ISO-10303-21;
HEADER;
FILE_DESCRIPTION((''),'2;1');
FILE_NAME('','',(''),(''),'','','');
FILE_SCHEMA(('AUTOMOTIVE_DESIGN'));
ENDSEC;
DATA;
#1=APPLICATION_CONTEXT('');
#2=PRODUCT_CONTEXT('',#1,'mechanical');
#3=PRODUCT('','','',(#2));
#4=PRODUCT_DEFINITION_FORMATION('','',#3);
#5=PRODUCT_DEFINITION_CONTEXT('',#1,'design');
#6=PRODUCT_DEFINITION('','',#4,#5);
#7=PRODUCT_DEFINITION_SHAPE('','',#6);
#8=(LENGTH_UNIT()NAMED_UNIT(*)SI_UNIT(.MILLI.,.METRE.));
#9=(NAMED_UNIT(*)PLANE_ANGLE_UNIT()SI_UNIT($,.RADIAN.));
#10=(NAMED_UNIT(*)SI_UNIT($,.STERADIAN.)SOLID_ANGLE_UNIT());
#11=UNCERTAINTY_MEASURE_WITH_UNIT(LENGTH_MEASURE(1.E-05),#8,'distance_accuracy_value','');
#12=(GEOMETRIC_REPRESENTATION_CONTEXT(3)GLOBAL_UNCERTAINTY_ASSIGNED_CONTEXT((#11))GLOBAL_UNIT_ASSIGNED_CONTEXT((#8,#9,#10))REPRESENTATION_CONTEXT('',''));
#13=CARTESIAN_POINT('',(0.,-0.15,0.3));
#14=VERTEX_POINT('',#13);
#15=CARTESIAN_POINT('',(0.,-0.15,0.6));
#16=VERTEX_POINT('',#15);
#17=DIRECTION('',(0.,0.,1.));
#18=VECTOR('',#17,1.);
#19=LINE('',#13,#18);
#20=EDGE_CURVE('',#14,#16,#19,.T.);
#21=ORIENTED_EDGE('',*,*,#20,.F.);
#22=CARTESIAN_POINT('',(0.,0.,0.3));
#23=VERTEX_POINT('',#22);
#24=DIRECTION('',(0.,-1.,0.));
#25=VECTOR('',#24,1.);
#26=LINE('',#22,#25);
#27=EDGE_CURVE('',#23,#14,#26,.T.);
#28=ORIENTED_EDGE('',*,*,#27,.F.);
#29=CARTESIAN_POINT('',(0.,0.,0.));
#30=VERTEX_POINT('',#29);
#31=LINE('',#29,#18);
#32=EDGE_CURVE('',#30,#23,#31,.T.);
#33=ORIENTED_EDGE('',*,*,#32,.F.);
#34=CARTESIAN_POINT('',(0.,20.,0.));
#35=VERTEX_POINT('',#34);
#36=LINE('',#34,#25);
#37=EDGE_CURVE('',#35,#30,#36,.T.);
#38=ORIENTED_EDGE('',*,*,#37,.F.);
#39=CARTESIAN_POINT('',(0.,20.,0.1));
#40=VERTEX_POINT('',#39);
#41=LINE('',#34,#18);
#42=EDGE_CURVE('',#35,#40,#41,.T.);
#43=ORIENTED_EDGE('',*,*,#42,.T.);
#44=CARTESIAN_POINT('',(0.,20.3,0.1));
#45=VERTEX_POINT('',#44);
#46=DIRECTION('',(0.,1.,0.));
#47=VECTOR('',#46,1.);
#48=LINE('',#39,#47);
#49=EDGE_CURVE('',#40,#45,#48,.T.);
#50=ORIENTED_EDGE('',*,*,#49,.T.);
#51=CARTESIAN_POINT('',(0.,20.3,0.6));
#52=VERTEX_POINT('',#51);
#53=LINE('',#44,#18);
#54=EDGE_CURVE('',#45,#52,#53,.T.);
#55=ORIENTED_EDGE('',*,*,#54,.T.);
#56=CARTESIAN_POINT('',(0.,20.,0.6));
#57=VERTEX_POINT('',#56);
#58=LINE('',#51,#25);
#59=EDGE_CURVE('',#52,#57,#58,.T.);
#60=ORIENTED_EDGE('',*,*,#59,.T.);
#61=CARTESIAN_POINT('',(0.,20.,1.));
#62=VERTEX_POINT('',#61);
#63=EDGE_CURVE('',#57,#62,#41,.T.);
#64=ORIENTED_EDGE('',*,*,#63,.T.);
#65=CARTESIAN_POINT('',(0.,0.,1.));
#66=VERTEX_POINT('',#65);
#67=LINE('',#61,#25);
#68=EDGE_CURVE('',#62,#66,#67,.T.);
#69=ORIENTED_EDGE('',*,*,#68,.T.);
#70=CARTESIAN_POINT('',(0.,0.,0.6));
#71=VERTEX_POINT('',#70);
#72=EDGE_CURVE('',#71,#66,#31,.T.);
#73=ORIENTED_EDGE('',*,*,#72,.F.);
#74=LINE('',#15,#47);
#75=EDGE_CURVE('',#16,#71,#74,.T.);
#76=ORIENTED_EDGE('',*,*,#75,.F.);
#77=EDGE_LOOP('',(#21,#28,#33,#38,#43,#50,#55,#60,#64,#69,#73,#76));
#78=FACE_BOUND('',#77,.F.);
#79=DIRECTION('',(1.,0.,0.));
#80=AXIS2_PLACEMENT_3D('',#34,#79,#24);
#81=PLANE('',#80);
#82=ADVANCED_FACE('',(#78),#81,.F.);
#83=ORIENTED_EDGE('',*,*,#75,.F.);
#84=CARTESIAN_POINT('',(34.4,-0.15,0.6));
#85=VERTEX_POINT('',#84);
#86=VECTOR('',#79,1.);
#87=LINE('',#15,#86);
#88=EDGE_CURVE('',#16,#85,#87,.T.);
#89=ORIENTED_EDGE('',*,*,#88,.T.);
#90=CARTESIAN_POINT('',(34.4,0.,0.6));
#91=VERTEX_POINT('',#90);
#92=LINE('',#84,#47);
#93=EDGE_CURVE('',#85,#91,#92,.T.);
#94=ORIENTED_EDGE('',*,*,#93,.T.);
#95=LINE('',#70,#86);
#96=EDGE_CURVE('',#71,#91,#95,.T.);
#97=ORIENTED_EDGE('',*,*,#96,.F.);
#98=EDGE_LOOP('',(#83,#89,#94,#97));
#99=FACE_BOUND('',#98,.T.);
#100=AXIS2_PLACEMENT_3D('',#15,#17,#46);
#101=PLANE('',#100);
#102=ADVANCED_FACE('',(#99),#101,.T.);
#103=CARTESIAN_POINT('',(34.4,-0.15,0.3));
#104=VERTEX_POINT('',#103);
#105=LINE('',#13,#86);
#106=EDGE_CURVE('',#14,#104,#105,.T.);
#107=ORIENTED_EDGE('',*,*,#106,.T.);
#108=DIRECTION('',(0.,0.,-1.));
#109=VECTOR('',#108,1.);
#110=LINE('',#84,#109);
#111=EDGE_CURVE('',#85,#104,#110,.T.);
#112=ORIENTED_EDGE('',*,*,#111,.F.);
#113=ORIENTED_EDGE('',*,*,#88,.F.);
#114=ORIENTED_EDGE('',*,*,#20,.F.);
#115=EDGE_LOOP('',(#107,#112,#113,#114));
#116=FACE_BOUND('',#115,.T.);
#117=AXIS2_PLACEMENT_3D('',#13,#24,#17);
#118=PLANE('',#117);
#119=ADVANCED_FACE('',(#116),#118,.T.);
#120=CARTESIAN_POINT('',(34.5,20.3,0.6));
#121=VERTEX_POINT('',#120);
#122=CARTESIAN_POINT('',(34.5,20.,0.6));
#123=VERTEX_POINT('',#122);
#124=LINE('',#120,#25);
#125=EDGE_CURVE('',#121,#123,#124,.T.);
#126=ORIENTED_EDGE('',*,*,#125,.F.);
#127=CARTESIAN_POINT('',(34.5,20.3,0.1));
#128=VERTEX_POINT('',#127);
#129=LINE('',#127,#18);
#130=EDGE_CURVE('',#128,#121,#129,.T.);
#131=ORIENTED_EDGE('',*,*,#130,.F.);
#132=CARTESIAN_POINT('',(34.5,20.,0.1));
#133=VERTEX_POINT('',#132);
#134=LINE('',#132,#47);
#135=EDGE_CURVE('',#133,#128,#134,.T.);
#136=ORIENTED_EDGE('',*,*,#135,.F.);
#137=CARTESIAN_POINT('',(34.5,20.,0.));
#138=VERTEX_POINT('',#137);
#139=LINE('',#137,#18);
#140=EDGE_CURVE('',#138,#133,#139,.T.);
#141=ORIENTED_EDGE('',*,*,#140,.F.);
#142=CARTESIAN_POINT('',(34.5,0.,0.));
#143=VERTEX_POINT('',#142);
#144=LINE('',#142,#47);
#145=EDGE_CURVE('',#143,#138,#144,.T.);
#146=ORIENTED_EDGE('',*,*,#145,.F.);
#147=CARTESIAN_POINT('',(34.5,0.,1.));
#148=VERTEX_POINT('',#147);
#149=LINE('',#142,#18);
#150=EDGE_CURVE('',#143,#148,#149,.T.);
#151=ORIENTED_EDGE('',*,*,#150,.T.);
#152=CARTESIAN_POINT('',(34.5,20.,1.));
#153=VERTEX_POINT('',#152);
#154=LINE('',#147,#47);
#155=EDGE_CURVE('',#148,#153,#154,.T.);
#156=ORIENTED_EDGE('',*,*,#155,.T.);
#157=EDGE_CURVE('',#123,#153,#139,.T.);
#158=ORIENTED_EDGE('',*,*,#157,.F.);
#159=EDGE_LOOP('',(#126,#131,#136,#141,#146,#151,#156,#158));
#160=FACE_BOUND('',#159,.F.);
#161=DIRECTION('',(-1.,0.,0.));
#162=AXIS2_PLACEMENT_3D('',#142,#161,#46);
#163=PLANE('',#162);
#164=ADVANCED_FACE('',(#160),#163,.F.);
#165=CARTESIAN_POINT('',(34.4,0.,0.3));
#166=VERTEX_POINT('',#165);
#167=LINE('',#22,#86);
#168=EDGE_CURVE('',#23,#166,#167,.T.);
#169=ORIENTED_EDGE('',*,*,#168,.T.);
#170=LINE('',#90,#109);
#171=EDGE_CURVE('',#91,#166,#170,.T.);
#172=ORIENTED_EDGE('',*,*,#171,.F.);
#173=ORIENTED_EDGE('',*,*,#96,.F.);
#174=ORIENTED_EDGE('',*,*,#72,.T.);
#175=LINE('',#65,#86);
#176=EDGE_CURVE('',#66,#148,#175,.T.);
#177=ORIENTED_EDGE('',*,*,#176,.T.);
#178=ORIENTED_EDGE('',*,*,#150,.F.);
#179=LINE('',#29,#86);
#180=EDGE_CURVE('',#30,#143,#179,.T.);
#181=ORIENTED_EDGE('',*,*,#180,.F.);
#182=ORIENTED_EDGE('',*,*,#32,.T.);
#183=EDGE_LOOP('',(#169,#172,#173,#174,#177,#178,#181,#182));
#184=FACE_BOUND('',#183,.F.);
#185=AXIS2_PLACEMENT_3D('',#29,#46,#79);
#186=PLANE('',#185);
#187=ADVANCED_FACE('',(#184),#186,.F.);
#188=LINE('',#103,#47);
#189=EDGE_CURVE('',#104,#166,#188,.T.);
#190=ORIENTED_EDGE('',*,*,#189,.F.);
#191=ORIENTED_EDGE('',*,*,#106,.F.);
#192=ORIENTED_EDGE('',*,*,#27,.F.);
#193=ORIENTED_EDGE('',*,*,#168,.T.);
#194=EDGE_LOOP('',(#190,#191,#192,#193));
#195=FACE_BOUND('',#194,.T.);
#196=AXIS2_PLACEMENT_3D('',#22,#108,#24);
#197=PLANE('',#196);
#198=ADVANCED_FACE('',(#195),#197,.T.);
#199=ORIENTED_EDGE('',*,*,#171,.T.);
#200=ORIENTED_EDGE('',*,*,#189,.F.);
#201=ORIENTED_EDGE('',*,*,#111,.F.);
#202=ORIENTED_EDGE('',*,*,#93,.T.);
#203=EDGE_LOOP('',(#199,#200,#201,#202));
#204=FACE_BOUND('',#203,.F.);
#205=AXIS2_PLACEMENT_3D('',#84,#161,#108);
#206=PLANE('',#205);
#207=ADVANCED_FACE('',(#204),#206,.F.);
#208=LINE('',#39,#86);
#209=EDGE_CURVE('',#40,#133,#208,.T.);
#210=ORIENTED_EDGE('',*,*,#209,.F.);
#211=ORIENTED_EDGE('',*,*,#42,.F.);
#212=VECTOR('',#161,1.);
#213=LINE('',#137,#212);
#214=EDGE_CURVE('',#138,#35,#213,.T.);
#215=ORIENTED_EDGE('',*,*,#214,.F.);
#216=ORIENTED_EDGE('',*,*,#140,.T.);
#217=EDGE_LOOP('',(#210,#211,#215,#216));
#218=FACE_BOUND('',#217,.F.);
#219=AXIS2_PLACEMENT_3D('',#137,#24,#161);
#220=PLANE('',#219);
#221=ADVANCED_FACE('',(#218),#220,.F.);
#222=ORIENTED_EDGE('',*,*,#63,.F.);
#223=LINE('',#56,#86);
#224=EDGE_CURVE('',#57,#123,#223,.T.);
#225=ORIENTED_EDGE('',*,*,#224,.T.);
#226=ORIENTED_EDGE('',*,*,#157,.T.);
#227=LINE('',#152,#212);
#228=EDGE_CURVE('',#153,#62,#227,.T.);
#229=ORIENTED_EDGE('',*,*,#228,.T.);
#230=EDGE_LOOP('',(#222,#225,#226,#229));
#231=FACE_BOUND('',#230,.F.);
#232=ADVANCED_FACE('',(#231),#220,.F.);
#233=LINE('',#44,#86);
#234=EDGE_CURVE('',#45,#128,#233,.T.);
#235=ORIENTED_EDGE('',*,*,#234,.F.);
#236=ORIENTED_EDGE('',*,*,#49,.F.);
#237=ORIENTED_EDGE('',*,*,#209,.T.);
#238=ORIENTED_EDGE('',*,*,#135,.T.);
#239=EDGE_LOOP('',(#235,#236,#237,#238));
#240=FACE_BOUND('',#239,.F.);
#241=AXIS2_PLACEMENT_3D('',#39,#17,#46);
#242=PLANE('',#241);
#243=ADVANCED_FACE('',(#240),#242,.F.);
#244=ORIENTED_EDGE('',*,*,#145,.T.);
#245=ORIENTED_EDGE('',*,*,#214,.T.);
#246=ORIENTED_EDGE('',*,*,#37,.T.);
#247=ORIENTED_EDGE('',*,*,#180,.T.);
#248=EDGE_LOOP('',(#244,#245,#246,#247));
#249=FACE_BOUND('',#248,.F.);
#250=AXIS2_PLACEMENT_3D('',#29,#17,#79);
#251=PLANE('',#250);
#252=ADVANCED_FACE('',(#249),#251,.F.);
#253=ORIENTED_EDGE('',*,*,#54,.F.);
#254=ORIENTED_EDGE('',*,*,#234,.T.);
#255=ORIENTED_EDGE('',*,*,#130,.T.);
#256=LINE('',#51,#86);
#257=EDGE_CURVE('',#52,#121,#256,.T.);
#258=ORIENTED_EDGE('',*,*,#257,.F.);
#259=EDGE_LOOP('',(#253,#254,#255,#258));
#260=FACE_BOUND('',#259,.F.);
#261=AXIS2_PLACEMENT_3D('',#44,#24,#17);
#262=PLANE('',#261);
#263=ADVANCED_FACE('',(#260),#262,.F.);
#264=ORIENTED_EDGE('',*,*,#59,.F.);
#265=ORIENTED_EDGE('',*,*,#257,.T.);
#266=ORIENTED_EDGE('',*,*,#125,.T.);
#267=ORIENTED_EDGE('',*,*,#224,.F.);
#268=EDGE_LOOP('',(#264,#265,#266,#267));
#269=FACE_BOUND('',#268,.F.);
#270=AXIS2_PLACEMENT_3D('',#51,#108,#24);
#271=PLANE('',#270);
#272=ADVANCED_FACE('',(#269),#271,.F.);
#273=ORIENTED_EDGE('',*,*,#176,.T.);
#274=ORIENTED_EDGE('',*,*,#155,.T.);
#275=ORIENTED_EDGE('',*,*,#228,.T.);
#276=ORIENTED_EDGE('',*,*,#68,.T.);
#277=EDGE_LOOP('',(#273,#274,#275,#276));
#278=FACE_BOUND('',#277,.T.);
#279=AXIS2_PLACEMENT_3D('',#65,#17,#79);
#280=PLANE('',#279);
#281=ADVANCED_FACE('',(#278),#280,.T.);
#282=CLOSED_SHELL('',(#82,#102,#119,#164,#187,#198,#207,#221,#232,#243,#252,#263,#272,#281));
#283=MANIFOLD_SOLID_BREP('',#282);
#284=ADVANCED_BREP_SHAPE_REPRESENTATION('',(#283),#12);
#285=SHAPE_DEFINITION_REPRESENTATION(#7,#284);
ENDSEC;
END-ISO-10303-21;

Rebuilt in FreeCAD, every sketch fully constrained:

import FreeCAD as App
import Part
import Sketcher
from FreeCAD import Vector
Q = App.Units.Quantity


def add_polygon(sketch, points):
    """Adds a closed chain of lines whose ends are joined by coincident constraints."""
    first, n = sketch.GeometryCount, len(points)
    for a, b in zip(points, points[1:] + points[:1]):
        sketch.addGeometry(Part.LineSegment(App.Vector(*a, 0), App.Vector(*b, 0)), False)
    for i in range(n):
        sketch.addConstraint(Sketcher.Constraint("Coincident", first + i, 2, first + (i + 1) % n, 1))

doc = App.newDocument("Part")
body = doc.addObject("PartDesign::Body", "Body")

sketch1 = body.newObject("Sketcher::SketchObject", "Sketch")
sketch1.AttachmentSupport = (doc.getObject("XY_Plane"), [""])
sketch1.MapMode = "FlatFace"
add_polygon(sketch1, [(0, 20), (0, 0), (34.5, 0), (34.5, 20)])
sketch1.addConstraint(Sketcher.Constraint("Vertical", 0))
sketch1.addConstraint(Sketcher.Constraint("Horizontal", 1))
sketch1.addConstraint(Sketcher.Constraint("Vertical", 2))
sketch1.addConstraint(Sketcher.Constraint("Horizontal", 3))
sketch1.addConstraint(Sketcher.Constraint("Coincident", 0, 2, -1, 1))
sketch1.addConstraint(Sketcher.Constraint("DistanceY", 0, 2, 0, 1, Q("20 mm")))
sketch1.addConstraint(Sketcher.Constraint("DistanceX", 1, 1, 1, 2, Q("34.5 mm")))
pad1 = body.newObject("PartDesign::Pad", "Pad")
pad1.Profile = sketch1
pad1.Length = 1

sketch2 = body.newObject("Sketcher::SketchObject", "Sketch001")
sketch2.AttachmentSupport = (doc.getObject("YZ_Plane"), [""])
sketch2.MapMode = "FlatFace"
add_polygon(sketch2, [(-0.15, 0.6), (0, 0.6), (0, 0.3), (-0.15, 0.3)])
add_polygon(sketch2, [(20, 0.1), (20, 0.6), (20.3, 0.6), (20.3, 0.1)])
sketch2.addConstraint(Sketcher.Constraint("Horizontal", 0))
sketch2.addConstraint(Sketcher.Constraint("Vertical", 1))
sketch2.addConstraint(Sketcher.Constraint("Horizontal", 2))
sketch2.addConstraint(Sketcher.Constraint("Vertical", 3))
sketch2.addConstraint(Sketcher.Constraint("Vertical", 4))
sketch2.addConstraint(Sketcher.Constraint("Horizontal", 5))
sketch2.addConstraint(Sketcher.Constraint("Vertical", 6))
sketch2.addConstraint(Sketcher.Constraint("Horizontal", 7))
sketch2.addConstraint(Sketcher.Constraint("PointOnObject", 0, 2, -2))
sketch2.addConstraint(Sketcher.Constraint("Horizontal", 3, 2, 4, 2))
sketch2.addConstraint(Sketcher.Constraint("Equal", 7, 1))
sketch2.addConstraint(Sketcher.Constraint("DistanceX", 5, 1, 5, 2, Q("0.3 mm")))
sketch2.addConstraint(Sketcher.Constraint("DistanceY", 4, 1, 4, 2, Q("0.5 mm")))
sketch2.addConstraint(Sketcher.Constraint("DistanceX", 0, 1, 0, 2, Q("0.15 mm")))
sketch2.addConstraint(Sketcher.Constraint("DistanceY", -1, 1, 1, 2, Q("0.3 mm")))
sketch2.addConstraint(Sketcher.Constraint("DistanceX", -1, 1, 4, 2, Q("20 mm")))
pad2 = body.newObject("PartDesign::Pad", "Pad001")
pad2.Profile = sketch2
pad2.Length = 34.5

sketch3 = body.newObject("Sketcher::SketchObject", "Sketch002")
sketch3.AttachmentSupport = (doc.getObject("XZ_Plane"), [""])
sketch3.MapMode = "FlatFace"
sketch3.AttachmentOffset = App.Placement(Vector(0, 0, 0.15), App.Rotation())
add_polygon(sketch3, [(34.5, 0.6), (34.4, 0.6), (34.4, 0.3), (34.5, 0.3)])
sketch3.addConstraint(Sketcher.Constraint("Horizontal", 0))
sketch3.addConstraint(Sketcher.Constraint("Vertical", 1))
sketch3.addConstraint(Sketcher.Constraint("Horizontal", 2))
sketch3.addConstraint(Sketcher.Constraint("Vertical", 3))
sketch3.addConstraint(Sketcher.Constraint("DistanceX", 0, 2, 0, 1, Q("0.1 mm")))
sketch3.addConstraint(Sketcher.Constraint("DistanceY", 1, 2, 1, 1, Q("0.3 mm")))
sketch3.addConstraint(Sketcher.Constraint("DistanceX", -1, 1, 0, 2, Q("34.4 mm")))
sketch3.addConstraint(Sketcher.Constraint("DistanceY", -1, 1, 0, 2, Q("0.6 mm")))
pocket1 = body.newObject("PartDesign::Pocket", "Pocket")
pocket1.Profile = sketch3
pocket1.Length = 0.15

doc.recompute()
